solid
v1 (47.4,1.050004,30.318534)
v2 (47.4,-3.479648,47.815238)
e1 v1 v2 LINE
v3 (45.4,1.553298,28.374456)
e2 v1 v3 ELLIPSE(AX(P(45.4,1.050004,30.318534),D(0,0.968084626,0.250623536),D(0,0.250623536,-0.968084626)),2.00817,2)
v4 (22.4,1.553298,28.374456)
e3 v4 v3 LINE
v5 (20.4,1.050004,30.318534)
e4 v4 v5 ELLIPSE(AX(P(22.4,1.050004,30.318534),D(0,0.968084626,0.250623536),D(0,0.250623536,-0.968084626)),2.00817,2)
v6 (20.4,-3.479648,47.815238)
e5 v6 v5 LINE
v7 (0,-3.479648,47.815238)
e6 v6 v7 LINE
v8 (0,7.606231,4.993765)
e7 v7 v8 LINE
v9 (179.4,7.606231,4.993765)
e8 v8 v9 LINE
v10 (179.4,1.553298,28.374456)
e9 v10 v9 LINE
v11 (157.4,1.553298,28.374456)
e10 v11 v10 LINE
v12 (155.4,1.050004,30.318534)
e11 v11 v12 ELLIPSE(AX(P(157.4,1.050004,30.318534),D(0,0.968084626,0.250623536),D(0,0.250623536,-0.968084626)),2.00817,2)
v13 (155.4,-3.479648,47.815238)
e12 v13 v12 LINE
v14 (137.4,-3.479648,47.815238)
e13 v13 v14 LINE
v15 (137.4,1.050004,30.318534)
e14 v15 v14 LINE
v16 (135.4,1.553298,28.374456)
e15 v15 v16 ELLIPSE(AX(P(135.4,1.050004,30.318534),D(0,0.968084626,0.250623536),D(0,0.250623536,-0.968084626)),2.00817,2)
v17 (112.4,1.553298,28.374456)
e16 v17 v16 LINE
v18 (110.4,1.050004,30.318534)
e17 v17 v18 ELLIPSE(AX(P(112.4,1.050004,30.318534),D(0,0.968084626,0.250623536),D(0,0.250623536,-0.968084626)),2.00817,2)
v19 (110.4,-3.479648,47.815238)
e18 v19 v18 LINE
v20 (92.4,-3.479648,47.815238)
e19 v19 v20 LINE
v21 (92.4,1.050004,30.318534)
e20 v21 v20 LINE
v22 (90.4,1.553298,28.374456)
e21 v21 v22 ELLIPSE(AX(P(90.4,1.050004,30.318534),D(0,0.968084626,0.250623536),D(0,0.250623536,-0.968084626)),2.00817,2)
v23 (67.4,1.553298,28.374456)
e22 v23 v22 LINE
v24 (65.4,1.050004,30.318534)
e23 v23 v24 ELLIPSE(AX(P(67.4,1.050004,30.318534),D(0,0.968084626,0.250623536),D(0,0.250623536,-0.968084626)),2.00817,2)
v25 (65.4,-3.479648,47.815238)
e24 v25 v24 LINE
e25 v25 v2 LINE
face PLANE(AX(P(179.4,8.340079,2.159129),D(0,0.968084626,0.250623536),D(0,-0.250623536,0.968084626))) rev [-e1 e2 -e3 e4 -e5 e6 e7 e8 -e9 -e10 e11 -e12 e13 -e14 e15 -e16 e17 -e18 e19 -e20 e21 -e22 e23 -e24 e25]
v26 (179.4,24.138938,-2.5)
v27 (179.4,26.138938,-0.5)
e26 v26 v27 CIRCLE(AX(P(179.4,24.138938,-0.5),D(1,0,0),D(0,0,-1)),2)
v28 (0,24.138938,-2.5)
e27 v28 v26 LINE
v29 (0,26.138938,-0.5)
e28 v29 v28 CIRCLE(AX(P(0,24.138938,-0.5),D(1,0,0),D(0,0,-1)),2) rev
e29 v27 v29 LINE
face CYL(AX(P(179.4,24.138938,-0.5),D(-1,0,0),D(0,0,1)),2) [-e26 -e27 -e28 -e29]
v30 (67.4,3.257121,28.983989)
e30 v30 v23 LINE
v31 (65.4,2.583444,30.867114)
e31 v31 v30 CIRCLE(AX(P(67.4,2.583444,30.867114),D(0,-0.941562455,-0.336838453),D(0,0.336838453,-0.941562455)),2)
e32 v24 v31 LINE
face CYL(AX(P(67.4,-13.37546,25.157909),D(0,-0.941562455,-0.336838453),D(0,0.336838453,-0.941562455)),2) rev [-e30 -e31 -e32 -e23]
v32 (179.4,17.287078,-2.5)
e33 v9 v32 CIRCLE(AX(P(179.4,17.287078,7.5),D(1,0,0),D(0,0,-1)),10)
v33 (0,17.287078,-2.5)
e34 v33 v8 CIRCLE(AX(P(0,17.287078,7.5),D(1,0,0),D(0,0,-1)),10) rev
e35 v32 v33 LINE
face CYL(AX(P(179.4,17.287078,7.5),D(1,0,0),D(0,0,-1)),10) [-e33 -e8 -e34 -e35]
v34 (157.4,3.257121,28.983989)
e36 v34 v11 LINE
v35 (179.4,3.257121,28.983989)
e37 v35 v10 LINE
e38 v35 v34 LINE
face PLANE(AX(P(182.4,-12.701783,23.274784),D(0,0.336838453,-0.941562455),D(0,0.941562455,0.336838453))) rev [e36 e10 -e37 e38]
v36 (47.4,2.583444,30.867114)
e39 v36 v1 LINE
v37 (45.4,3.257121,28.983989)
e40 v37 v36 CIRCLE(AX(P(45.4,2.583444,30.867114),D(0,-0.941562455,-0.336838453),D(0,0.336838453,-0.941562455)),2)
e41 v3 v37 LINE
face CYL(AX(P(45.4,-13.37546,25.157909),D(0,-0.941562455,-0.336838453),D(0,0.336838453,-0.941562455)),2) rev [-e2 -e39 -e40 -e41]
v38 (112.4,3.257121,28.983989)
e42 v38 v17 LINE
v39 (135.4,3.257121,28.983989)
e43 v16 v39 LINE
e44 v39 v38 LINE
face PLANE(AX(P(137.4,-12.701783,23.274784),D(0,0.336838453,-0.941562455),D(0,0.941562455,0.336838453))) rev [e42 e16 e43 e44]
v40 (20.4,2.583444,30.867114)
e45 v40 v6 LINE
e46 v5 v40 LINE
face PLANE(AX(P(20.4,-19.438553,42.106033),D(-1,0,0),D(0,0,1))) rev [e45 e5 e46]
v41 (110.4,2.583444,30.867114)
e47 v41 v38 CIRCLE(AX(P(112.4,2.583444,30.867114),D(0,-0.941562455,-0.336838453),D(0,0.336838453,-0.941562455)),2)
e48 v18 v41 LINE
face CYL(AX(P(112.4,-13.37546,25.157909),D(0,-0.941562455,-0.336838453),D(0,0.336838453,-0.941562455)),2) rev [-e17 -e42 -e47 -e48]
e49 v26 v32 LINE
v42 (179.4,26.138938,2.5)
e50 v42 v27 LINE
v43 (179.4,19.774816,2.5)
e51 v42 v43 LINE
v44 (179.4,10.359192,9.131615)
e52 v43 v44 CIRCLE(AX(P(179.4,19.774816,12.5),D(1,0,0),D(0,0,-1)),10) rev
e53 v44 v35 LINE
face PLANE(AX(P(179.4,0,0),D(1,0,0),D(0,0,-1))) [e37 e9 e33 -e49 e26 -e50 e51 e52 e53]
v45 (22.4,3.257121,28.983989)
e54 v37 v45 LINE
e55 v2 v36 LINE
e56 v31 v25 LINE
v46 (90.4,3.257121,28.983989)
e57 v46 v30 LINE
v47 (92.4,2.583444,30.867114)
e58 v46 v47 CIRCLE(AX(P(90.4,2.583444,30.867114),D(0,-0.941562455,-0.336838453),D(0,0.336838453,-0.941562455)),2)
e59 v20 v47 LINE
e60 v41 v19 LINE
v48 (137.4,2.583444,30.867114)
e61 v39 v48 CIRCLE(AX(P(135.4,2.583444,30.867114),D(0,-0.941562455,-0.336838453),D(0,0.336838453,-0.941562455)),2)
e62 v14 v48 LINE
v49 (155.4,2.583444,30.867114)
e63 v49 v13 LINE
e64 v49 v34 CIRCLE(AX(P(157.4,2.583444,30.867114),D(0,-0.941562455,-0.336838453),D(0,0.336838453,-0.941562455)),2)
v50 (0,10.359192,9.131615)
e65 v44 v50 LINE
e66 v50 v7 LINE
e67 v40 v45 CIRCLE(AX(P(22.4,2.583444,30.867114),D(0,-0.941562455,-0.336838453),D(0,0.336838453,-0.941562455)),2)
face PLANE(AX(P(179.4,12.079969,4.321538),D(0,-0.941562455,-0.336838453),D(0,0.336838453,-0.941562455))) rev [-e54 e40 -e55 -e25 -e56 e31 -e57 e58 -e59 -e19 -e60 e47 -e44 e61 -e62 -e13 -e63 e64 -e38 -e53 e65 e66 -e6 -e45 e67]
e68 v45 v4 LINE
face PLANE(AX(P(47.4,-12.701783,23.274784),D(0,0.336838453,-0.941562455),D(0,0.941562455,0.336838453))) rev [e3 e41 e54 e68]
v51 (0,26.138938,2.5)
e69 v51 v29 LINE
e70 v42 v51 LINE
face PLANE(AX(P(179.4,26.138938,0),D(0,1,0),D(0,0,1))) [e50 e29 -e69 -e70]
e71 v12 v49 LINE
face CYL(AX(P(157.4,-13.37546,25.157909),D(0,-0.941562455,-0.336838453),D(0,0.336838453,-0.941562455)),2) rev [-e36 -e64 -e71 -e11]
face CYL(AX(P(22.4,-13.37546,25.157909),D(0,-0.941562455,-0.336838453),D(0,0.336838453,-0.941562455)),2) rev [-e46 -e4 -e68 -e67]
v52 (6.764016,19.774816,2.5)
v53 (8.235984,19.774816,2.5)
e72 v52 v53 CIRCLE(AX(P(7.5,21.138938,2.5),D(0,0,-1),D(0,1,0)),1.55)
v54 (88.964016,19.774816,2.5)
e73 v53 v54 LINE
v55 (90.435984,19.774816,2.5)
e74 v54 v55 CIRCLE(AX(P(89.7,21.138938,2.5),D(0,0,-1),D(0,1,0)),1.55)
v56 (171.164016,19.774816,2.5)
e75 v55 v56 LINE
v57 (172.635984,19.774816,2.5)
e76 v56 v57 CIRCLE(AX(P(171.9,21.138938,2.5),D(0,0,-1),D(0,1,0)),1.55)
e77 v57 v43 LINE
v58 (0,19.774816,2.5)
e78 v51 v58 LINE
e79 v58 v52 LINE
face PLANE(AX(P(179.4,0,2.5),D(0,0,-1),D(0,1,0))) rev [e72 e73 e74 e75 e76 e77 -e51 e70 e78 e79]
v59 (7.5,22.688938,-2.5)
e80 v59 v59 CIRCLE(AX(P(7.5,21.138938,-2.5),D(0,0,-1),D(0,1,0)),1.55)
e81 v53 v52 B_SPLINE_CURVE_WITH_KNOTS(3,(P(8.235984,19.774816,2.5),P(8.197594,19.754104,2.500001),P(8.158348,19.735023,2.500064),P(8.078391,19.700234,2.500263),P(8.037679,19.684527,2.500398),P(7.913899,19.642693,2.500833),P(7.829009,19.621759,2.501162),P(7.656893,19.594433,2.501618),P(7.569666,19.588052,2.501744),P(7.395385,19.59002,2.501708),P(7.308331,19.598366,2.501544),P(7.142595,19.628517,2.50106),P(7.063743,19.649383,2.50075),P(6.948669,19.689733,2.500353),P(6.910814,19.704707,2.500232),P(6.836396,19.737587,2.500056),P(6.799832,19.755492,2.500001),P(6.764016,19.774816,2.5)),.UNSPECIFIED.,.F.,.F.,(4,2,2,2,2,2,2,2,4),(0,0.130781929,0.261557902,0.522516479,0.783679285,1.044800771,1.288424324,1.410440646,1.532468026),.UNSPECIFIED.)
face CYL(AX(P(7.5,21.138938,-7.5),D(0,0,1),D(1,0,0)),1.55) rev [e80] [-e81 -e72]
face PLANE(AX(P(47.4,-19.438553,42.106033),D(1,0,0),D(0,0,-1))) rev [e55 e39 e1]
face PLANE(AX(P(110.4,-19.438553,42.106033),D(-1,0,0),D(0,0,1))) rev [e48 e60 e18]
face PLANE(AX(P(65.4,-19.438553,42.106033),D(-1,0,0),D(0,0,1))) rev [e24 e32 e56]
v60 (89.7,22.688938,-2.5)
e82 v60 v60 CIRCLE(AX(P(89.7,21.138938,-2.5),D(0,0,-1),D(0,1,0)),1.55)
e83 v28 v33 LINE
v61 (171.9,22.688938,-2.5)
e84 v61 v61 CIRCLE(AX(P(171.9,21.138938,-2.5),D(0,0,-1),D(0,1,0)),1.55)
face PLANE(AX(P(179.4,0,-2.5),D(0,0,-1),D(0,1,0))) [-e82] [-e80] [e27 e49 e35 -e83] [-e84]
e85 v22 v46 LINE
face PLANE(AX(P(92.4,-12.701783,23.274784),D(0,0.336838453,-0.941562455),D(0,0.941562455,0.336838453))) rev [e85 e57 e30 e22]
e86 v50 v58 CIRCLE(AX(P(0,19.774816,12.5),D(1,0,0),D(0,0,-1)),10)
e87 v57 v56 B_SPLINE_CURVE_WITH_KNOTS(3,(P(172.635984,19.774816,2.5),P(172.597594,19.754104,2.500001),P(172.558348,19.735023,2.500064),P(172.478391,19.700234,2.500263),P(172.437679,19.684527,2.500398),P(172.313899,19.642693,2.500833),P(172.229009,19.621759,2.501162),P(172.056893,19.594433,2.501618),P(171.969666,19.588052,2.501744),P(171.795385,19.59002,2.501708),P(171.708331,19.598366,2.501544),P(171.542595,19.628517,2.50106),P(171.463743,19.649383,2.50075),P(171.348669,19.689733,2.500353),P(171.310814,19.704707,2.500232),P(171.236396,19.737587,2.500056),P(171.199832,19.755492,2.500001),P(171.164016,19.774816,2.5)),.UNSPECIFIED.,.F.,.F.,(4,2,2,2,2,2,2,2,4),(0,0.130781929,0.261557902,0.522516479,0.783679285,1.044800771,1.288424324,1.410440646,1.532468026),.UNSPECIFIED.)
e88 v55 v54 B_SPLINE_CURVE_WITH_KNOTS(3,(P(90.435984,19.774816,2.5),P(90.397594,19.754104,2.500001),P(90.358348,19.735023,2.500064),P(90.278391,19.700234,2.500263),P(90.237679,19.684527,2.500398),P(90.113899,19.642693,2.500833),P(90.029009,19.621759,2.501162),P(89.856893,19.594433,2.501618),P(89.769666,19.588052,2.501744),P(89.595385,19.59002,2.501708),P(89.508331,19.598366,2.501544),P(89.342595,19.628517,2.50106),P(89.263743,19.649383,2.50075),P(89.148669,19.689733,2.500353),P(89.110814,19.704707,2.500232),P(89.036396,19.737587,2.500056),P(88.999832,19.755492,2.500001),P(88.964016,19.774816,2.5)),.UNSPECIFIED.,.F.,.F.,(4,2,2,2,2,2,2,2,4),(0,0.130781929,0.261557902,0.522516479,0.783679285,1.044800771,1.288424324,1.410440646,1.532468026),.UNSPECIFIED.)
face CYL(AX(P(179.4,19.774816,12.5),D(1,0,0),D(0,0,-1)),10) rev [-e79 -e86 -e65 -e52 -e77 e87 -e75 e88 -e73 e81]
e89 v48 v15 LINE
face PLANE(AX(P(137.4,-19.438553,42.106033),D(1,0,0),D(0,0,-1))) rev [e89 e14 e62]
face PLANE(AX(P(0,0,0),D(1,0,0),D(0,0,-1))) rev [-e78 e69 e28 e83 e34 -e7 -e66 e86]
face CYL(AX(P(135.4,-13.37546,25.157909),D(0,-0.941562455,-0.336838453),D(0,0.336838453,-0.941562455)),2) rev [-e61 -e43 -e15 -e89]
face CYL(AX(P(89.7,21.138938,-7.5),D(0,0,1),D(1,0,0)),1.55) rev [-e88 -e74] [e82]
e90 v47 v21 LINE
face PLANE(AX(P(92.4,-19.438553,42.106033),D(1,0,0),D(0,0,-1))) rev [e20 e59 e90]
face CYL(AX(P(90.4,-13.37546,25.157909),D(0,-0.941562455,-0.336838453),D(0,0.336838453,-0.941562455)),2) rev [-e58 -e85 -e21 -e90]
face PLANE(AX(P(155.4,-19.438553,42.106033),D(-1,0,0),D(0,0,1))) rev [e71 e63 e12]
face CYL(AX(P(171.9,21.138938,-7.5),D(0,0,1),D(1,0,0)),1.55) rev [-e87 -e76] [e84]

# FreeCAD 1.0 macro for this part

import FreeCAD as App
import Part
import Sketcher

V = App.Vector


def edges_at(feature, points):
    """Names of the edges that pass closest to the given points."""
    edges = feature.Shape.Edges
    near = lambda p: min(range(len(edges)), key=lambda i: edges[i].distToShape(Part.Vertex(*p))[0])
    return sorted({f"Edge{near(p) + 1}" for p in points})


def add_polygon(sketch, points):
    """Adds a closed chain of lines whose ends are joined by coincident constraints."""
    first, n = sketch.GeometryCount, len(points)
    for a, b in zip(points, points[1:] + points[:1]):
        sketch.addGeometry(Part.LineSegment(App.Vector(*a, 0), App.Vector(*b, 0)), False)
    for i in range(n):
        sketch.addConstraint(Sketcher.Constraint("Coincident", first + i, 2, first + (i + 1) % n, 1))

doc = App.newDocument("Part")
body = doc.addObject("PartDesign::Body", "Body")

# Sketch on YZ plane
sketch1 = body.newObject("Sketcher::SketchObject", "Sketch")
sketch1.AttachmentSupport = (doc.getObject("YZ_Plane"), [""])
sketch1.MapMode = "FlatFace"
add_polygon(sketch1, [(26, 2), (13, 2), (-3, 48), (10, -2), (26, -2)])  # lines 0-4
sketch1.addConstraint(Sketcher.Constraint("Horizontal", 0))
sketch1.addConstraint(Sketcher.Constraint("Horizontal", 3))
sketch1.addConstraint(Sketcher.Constraint("Vertical", 4))
sketch1.addConstraint(Sketcher.Constraint("DistanceY", 4, 1, 4, 2, 5.0))
sketch1.addConstraint(Sketcher.Constraint("DistanceY", -1, 1, 0, 2, 2.5))
sketch1.addConstraint(Sketcher.Constraint("DistanceX", 0, 2, 0, 1, 13.407324))
sketch1.addConstraint(Sketcher.Constraint("DistanceX", 3, 1, 3, 2, 16.592676))
sketch1.addConstraint(Sketcher.Constraint("DistanceX", -1, 1, 2, 2, 9.546262))
sketch1.addConstraint(Sketcher.Constraint("DistanceX", 1, 2, 0, 2, 16.211261))
sketch1.addConstraint(Sketcher.Constraint("Distance", 1, 48.127703))
pad1 = body.newObject("PartDesign::Pad", "Pad")
pad1.Profile = sketch1
pad1.Length = 179.4
doc.recompute()

fillet = body.newObject("PartDesign::Fillet", "Fillet")
fillet.Base = (pad1, edges_at(pad1, [(89.7, 12.732, 2.5), (89.7, 9.546, -2.5)]))
fillet.Radius = 10
doc.recompute()

fillet2 = body.newObject("PartDesign::Fillet", "Fillet001")
fillet2.Base = (fillet, edges_at(fillet, [(89.7, 26.139, -2.5)]))
fillet2.Radius = 2

# Sketch on XY plane
sketch2 = body.newObject("Sketcher::SketchObject", "Sketch001")
sketch2.AttachmentSupport = (doc.getObject("XY_Plane"), [""])
sketch2.MapMode = "FlatFace"
sketch2.AttachmentOffset = App.Placement(V(0, 0, 2.5), App.Rotation())
sketch2.addGeometry(Part.Circle(V(7.5, 21.1, 0), V(0, 0, 1), 1.6), False)
sketch2.addGeometry(Part.Circle(V(171.9, 21.1, 0), V(0, 0, 1), 1.6), False)
sketch2.addGeometry(Part.Circle(V(89.7, 21.1, 0), V(0, 0, 1), 1.6), False)
sketch2.addConstraint(Sketcher.Constraint("Equal", 0, 1))
sketch2.addConstraint(Sketcher.Constraint("Equal", 1, 2))
sketch2.addConstraint(Sketcher.Constraint("Horizontal", 0, 3, 1, 3))
sketch2.addConstraint(Sketcher.Constraint("Horizontal", 1, 3, 2, 3))
sketch2.addConstraint(Sketcher.Constraint("Diameter", 0, 3.1))
sketch2.addConstraint(Sketcher.Constraint("DistanceX", -1, 1, 0, 3, 7.5))
sketch2.addConstraint(Sketcher.Constraint("DistanceX", -1, 1, 1, 3, 171.9))
sketch2.addConstraint(Sketcher.Constraint("DistanceX", -1, 1, 2, 3, 89.7))
sketch2.addConstraint(Sketcher.Constraint("DistanceY", -1, 1, 0, 3, 21.138938))
pocket1 = body.newObject("PartDesign::Pocket", "Pocket")
pocket1.Profile = sketch2
pocket1.Length = 20
pocket1.Midplane = True

# Sketch on an angled plane
sketch3 = body.newObject("Sketcher::SketchObject", "Sketch002")
sketch3.Placement = App.Placement(V(0, 12.079969, 4.321538), App.Rotation(V(1, 0, 0), V(0, 0.336838453, -0.941562455), V(0, 0.941562455, 0.336838453), "ZXY"))
add_polygon(sketch3, [(155, -26), (155, -46), (182, -46), (182, -26)])  # lines 0-3
sketch3.addConstraint(Sketcher.Constraint("Vertical", 0))
sketch3.addConstraint(Sketcher.Constraint("Horizontal", 1))
sketch3.addConstraint(Sketcher.Constraint("Vertical", 2))
sketch3.addConstraint(Sketcher.Constraint("Horizontal", 3))
sketch3.addConstraint(Sketcher.Constraint("DistanceX", 1, 1, 1, 2, 27.0))
sketch3.addConstraint(Sketcher.Constraint("DistanceY", 0, 2, 0, 1, 20.0))
sketch3.addConstraint(Sketcher.Constraint("DistanceX", -1, 1, 0, 2, 155.4))
sketch3.addConstraint(Sketcher.Constraint("DistanceY", 0, 2, -1, 1, 46.193112))
pocket2 = body.newObject("PartDesign::Pocket", "Pocket001")
pocket2.Profile = sketch3
pocket2.Length = 1.80957

# Sketch on an angled plane
sketch4 = body.newObject("Sketcher::SketchObject", "Sketch003")
sketch4.Placement = App.Placement(V(0, 12.079969, 4.321538), App.Rotation(V(1, 0, 0), V(0, 0.336838453, -0.941562455), V(0, 0.941562455, 0.336838453), "ZXY"))
add_polygon(sketch4, [(110, -26), (110, -46), (137, -46), (137, -26)])  # lines 0-3
sketch4.addConstraint(Sketcher.Constraint("Vertical", 0))
sketch4.addConstraint(Sketcher.Constraint("Horizontal", 1))
sketch4.addConstraint(Sketcher.Constraint("Vertical", 2))
sketch4.addConstraint(Sketcher.Constraint("Horizontal", 3))
sketch4.addConstraint(Sketcher.Constraint("DistanceX", 1, 1, 1, 2, 27.0))
sketch4.addConstraint(Sketcher.Constraint("DistanceY", 0, 2, 0, 1, 20.0))
sketch4.addConstraint(Sketcher.Constraint("DistanceX", -1, 1, 0, 2, 110.4))
sketch4.addConstraint(Sketcher.Constraint("DistanceY", 0, 2, -1, 1, 46.193112))
pocket3 = body.newObject("PartDesign::Pocket", "Pocket002")
pocket3.Profile = sketch4
pocket3.Length = 1.80957

# Sketch on an angled plane
sketch5 = body.newObject("Sketcher::SketchObject", "Sketch004")
sketch5.Placement = App.Placement(V(0, 12.079969, 4.321538), App.Rotation(V(1, 0, 0), V(0, 0.336838453, -0.941562455), V(0, 0.941562455, 0.336838453), "ZXY"))
add_polygon(sketch5, [(65, -26), (65, -46), (92, -46), (92, -26)])  # lines 0-3
sketch5.addConstraint(Sketcher.Constraint("Vertical", 0))
sketch5.addConstraint(Sketcher.Constraint("Horizontal", 1))
sketch5.addConstraint(Sketcher.Constraint("Vertical", 2))
sketch5.addConstraint(Sketcher.Constraint("Horizontal", 3))
sketch5.addConstraint(Sketcher.Constraint("DistanceX", 1, 1, 1, 2, 27.0))
sketch5.addConstraint(Sketcher.Constraint("DistanceY", 0, 2, 0, 1, 20.0))
sketch5.addConstraint(Sketcher.Constraint("DistanceX", -1, 1, 0, 2, 65.4))
sketch5.addConstraint(Sketcher.Constraint("DistanceY", 0, 2, -1, 1, 46.193112))
pocket4 = body.newObject("PartDesign::Pocket", "Pocket003")
pocket4.Profile = sketch5
pocket4.Length = 1.80957

# Sketch on an angled plane
sketch6 = body.newObject("Sketcher::SketchObject", "Sketch005")
sketch6.Placement = App.Placement(V(0, 12.079969, 4.321538), App.Rotation(V(1, 0, 0), V(0, 0.336838453, -0.941562455), V(0, 0.941562455, 0.336838453), "ZXY"))
add_polygon(sketch6, [(20, -26), (20, -46), (47, -46), (47, -26)])  # lines 0-3
sketch6.addConstraint(Sketcher.Constraint("Vertical", 0))
sketch6.addConstraint(Sketcher.Constraint("Horizontal", 1))
sketch6.addConstraint(Sketcher.Constraint("Vertical", 2))
sketch6.addConstraint(Sketcher.Constraint("Horizontal", 3))
sketch6.addConstraint(Sketcher.Constraint("DistanceX", 1, 1, 1, 2, 27.0))
sketch6.addConstraint(Sketcher.Constraint("DistanceY", 0, 2, 0, 1, 20.0))
sketch6.addConstraint(Sketcher.Constraint("DistanceX", -1, 1, 0, 2, 20.4))
sketch6.addConstraint(Sketcher.Constraint("DistanceY", 0, 2, -1, 1, 46.193112))
pocket5 = body.newObject("PartDesign::Pocket", "Pocket004")
pocket5.Profile = sketch6
pocket5.Length = 1.80957
doc.recompute()

fillet3 = body.newObject("PartDesign::Fillet", "Fillet002")
fillet3.Base = (pocket5, edges_at(pocket5, [
    (155.4, 2.405, 28.679),
    (110.4, 2.405, 28.679),
    (137.4, 2.405, 28.679),
    (65.4, 2.405, 28.679),
    (92.4, 2.405, 28.679),
    (20.4, 2.405, 28.679),
    (47.4, 2.405, 28.679),
]))
fillet3.Radius = 2

doc.recompute()
